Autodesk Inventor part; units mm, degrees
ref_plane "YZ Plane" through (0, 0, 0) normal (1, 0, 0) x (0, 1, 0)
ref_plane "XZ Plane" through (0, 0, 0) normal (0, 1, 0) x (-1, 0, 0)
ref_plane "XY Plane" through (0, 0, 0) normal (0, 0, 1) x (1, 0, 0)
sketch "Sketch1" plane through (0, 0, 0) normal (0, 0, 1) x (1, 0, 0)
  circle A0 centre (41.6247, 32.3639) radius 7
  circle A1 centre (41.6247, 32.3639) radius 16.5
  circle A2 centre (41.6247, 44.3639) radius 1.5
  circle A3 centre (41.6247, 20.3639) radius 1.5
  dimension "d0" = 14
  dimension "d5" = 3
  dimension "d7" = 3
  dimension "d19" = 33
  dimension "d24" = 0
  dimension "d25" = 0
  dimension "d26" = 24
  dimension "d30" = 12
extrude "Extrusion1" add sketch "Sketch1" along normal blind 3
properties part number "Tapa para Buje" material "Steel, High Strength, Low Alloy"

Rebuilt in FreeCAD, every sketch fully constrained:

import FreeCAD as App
import Part
import Sketcher

V = App.Vector
Q = App.Units.Quantity

doc = App.newDocument("Part")
body = doc.addObject("PartDesign::Body", "Body")

# Sketch on XY plane
sketch1 = body.newObject("Sketcher::SketchObject", "Sketch")
sketch1.AttachmentSupport = (doc.getObject("XY_Plane"), [""])
sketch1.MapMode = "FlatFace"
sketch1.addGeometry([
    Part.Circle(V(41.6, 32.4, 0), V(0, 0, 1), 16.5),
    Part.Circle(V(41.6, 20.4, 0), V(0, 0, 1), 1.5),
    Part.Circle(V(41.6, 32.4, 0), V(0, 0, 1), 7),
    Part.Circle(V(41.6, 44.4, 0), V(0, 0, 1), 1.5),
], False)
sketch1.addConstraint([
    Sketcher.Constraint("Coincident", 2, 3, 0, 3),
    Sketcher.Constraint("Equal", 1, 3),
    Sketcher.Constraint("Vertical", 0, 3, 1, 3),
    Sketcher.Constraint("Vertical", 2, 3, 3, 3),
    Sketcher.Constraint("Diameter", 0, Q("33 mm")),
    Sketcher.Constraint("Diameter", 1, Q("3 mm")),
    Sketcher.Constraint("Diameter", 2, Q("14 mm")),
    Sketcher.Constraint("DistanceY", 1, 3, 0, 3, Q("12 mm")),
    Sketcher.Constraint("DistanceY", 0, 3, 3, 3, Q("12 mm")),
    Sketcher.Constraint("DistanceY", -1, 1, 0, 3, Q("32.364 mm")),
    Sketcher.Constraint("DistanceX", -1, 1, 0, 3, Q("41.6247 mm")),
])
pad1 = body.newObject("PartDesign::Pad", "Pad")
pad1.Profile = sketch1
pad1.Length = 3

doc.recompute()
